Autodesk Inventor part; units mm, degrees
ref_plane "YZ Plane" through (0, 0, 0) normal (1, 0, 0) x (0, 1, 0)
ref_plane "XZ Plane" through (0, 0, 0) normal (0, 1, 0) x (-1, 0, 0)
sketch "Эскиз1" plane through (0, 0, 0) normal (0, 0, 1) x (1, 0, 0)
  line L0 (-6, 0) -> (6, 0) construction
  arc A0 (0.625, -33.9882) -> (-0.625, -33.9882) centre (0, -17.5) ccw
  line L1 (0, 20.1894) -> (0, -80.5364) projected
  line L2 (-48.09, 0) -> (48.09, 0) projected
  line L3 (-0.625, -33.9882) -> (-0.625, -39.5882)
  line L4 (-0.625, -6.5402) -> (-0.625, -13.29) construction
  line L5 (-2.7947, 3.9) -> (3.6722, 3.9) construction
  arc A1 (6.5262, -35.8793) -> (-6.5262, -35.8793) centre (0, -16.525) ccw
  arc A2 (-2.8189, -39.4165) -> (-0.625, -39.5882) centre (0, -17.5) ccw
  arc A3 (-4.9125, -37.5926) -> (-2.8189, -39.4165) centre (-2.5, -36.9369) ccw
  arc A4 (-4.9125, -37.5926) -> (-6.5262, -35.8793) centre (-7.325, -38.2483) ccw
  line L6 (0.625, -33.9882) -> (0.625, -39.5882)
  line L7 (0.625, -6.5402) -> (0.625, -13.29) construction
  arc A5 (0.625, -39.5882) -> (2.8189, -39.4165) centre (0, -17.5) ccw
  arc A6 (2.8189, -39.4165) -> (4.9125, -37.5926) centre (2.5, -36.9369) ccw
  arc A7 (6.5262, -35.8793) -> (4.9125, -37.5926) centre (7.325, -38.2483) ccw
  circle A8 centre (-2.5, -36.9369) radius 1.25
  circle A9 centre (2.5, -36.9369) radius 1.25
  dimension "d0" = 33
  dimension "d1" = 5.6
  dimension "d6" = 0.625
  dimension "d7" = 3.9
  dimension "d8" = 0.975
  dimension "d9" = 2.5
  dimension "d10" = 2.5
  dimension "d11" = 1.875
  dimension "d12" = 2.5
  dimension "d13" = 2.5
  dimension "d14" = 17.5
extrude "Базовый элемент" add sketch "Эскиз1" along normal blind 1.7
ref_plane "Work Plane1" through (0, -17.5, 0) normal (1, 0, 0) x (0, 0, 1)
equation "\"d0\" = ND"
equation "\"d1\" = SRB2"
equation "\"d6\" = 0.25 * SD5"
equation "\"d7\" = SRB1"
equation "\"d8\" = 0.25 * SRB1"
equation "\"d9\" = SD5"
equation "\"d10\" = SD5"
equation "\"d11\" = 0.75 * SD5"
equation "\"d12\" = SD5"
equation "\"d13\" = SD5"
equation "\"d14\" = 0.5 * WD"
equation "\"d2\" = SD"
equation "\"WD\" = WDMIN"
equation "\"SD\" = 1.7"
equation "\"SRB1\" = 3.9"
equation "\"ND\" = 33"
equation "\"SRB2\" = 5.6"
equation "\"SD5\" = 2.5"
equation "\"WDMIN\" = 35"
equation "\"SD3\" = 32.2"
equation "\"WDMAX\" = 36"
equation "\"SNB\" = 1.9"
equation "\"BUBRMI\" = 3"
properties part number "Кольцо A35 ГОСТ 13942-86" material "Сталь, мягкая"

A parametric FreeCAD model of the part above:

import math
import FreeCAD as App
import Part
import Sketcher
from FreeCAD import Vector
Q = App.Units.Quantity

doc = App.newDocument("Part")
body = doc.addObject("PartDesign::Body", "Body")

# Sketch on XY plane
sketch1 = body.newObject("Sketcher::SketchObject", "Sketch")
sketch1.AttachmentSupport = (doc.getObject("XY_Plane"), [""])
sketch1.MapMode = "FlatFace"
sketch1.addGeometry(Part.LineSegment(Vector(0.6, -34, 0), Vector(0.6, -39.6, 0)), False)
sketch1.addGeometry(Part.ArcOfCircle(Part.Circle(Vector(0, -17.5, 0), Vector(0, 0, 1), 22.1), math.radians(-88.38), math.radians(-82.67)), False)
sketch1.addGeometry(Part.ArcOfCircle(Part.Circle(Vector(2.5, -36.9, 0), Vector(0, 0, 1), 2.5), math.radians(-83), math.radians(-15)), False)
sketch1.addGeometry(Part.ArcOfCircle(Part.Circle(Vector(7.3, -38.2, 0), Vector(0, 0, 1), 2.5), math.radians(109), math.radians(165)), False)
sketch1.addGeometry(Part.ArcOfCircle(Part.Circle(Vector(0, -16.5, 0), Vector(0, 0, 1), 20.4), math.radians(-71), math.radians(251)), False)
sketch1.addGeometry(Part.ArcOfCircle(Part.Circle(Vector(-7.3, -38.2, 0), Vector(0, 0, 1), 2.5), math.radians(15), math.radians(71)), False)
sketch1.addGeometry(Part.ArcOfCircle(Part.Circle(Vector(-2.5, -36.9, 0), Vector(0, 0, 1), 2.5), math.radians(-165), math.radians(-97)), False)
sketch1.addGeometry(Part.ArcOfCircle(Part.Circle(Vector(0, -17.5, 0), Vector(0, 0, 1), 22.1), math.radians(-97.33), math.radians(-91.62)), False)
sketch1.addGeometry(Part.LineSegment(Vector(-0.6, -39.6, 0), Vector(-0.6, -34, 0)), False)
sketch1.addGeometry(Part.ArcOfCircle(Part.Circle(Vector(0, -17.5, 0), Vector(0, 0, 1), 16.5), math.radians(-88), math.radians(268)), False)
sketch1.addGeometry(Part.Circle(Vector(2.5, -36.9, 0), Vector(0, 0, 1), 1.2), False)
sketch1.addGeometry(Part.Circle(Vector(-2.5, -36.9, 0), Vector(0, 0, 1), 1.2), False)
sketch1.addConstraint(Sketcher.Constraint("Coincident", 0, 2, 1, 1))
sketch1.addConstraint(Sketcher.Constraint("Tangent", 1, 2, 2, 1))
sketch1.addConstraint(Sketcher.Constraint("Tangent", 2, 2, 3, 2))
sketch1.addConstraint(Sketcher.Constraint("Tangent", 3, 1, 4, 1))
sketch1.addConstraint(Sketcher.Constraint("Tangent", 4, 2, 5, 2))
sketch1.addConstraint(Sketcher.Constraint("Tangent", 5, 1, 6, 1))
sketch1.addConstraint(Sketcher.Constraint("Tangent", 6, 2, 7, 1))
sketch1.addConstraint(Sketcher.Constraint("Coincident", 7, 2, 8, 1))
sketch1.addConstraint(Sketcher.Constraint("Coincident", 8, 2, 9, 2))
sketch1.addConstraint(Sketcher.Constraint("Coincident", 9, 1, 0, 1))
sketch1.addConstraint(Sketcher.Constraint("Vertical", 0))
sketch1.addConstraint(Sketcher.Constraint("Vertical", 8))
sketch1.addConstraint(Sketcher.Constraint("Coincident", 7, 3, 1, 3))
sketch1.addConstraint(Sketcher.Constraint("Coincident", 9, 3, 1, 3))
sketch1.addConstraint(Sketcher.Constraint("Coincident", 10, 3, 2, 3))
sketch1.addConstraint(Sketcher.Constraint("Coincident", 11, 3, 6, 3))
sketch1.addConstraint(Sketcher.Constraint("Equal", 2, 3))
sketch1.addConstraint(Sketcher.Constraint("Equal", 3, 5))
sketch1.addConstraint(Sketcher.Constraint("Equal", 5, 6))
sketch1.addConstraint(Sketcher.Constraint("Equal", 1, 7))
sketch1.addConstraint(Sketcher.Constraint("Equal", 10, 11))
sketch1.addConstraint(Sketcher.Constraint("Symmetric", 3, 3, 5, 3, -2))
sketch1.addConstraint(Sketcher.Constraint("Symmetric", 0, 2, 7, 2, -2))
sketch1.addConstraint(Sketcher.Constraint("Diameter", 10, Q("2.5 mm")))
sketch1.addConstraint(Sketcher.Constraint("Radius", 2, Q("2.5 mm")))
sketch1.addConstraint(Sketcher.Constraint("Radius", 9, Q("16.5 mm")))
sketch1.addConstraint(Sketcher.Constraint("DistanceY", 0, 2, 0, 1, Q("5.6 mm")))
sketch1.addConstraint(Sketcher.Constraint("DistanceY", 1, 3, -1, 1, Q("17.5 mm")))
sketch1.addConstraint(Sketcher.Constraint("DistanceX", -1, 1, 2, 3, Q("2.5 mm")))
sketch1.addConstraint(Sketcher.Constraint("DistanceX", -1, 1, 0, 2, Q("0.625 mm")))
sketch1.addConstraint(Sketcher.Constraint("Radius", 4, Q("20.425 mm")))
sketch1.addConstraint(Sketcher.Constraint("DistanceY", 1, 3, 4, 3, Q("0.975 mm")))
pad1 = body.newObject("PartDesign::Pad", "Pad")
pad1.Profile = sketch1
pad1.Length = 1.7

doc.recompute()
